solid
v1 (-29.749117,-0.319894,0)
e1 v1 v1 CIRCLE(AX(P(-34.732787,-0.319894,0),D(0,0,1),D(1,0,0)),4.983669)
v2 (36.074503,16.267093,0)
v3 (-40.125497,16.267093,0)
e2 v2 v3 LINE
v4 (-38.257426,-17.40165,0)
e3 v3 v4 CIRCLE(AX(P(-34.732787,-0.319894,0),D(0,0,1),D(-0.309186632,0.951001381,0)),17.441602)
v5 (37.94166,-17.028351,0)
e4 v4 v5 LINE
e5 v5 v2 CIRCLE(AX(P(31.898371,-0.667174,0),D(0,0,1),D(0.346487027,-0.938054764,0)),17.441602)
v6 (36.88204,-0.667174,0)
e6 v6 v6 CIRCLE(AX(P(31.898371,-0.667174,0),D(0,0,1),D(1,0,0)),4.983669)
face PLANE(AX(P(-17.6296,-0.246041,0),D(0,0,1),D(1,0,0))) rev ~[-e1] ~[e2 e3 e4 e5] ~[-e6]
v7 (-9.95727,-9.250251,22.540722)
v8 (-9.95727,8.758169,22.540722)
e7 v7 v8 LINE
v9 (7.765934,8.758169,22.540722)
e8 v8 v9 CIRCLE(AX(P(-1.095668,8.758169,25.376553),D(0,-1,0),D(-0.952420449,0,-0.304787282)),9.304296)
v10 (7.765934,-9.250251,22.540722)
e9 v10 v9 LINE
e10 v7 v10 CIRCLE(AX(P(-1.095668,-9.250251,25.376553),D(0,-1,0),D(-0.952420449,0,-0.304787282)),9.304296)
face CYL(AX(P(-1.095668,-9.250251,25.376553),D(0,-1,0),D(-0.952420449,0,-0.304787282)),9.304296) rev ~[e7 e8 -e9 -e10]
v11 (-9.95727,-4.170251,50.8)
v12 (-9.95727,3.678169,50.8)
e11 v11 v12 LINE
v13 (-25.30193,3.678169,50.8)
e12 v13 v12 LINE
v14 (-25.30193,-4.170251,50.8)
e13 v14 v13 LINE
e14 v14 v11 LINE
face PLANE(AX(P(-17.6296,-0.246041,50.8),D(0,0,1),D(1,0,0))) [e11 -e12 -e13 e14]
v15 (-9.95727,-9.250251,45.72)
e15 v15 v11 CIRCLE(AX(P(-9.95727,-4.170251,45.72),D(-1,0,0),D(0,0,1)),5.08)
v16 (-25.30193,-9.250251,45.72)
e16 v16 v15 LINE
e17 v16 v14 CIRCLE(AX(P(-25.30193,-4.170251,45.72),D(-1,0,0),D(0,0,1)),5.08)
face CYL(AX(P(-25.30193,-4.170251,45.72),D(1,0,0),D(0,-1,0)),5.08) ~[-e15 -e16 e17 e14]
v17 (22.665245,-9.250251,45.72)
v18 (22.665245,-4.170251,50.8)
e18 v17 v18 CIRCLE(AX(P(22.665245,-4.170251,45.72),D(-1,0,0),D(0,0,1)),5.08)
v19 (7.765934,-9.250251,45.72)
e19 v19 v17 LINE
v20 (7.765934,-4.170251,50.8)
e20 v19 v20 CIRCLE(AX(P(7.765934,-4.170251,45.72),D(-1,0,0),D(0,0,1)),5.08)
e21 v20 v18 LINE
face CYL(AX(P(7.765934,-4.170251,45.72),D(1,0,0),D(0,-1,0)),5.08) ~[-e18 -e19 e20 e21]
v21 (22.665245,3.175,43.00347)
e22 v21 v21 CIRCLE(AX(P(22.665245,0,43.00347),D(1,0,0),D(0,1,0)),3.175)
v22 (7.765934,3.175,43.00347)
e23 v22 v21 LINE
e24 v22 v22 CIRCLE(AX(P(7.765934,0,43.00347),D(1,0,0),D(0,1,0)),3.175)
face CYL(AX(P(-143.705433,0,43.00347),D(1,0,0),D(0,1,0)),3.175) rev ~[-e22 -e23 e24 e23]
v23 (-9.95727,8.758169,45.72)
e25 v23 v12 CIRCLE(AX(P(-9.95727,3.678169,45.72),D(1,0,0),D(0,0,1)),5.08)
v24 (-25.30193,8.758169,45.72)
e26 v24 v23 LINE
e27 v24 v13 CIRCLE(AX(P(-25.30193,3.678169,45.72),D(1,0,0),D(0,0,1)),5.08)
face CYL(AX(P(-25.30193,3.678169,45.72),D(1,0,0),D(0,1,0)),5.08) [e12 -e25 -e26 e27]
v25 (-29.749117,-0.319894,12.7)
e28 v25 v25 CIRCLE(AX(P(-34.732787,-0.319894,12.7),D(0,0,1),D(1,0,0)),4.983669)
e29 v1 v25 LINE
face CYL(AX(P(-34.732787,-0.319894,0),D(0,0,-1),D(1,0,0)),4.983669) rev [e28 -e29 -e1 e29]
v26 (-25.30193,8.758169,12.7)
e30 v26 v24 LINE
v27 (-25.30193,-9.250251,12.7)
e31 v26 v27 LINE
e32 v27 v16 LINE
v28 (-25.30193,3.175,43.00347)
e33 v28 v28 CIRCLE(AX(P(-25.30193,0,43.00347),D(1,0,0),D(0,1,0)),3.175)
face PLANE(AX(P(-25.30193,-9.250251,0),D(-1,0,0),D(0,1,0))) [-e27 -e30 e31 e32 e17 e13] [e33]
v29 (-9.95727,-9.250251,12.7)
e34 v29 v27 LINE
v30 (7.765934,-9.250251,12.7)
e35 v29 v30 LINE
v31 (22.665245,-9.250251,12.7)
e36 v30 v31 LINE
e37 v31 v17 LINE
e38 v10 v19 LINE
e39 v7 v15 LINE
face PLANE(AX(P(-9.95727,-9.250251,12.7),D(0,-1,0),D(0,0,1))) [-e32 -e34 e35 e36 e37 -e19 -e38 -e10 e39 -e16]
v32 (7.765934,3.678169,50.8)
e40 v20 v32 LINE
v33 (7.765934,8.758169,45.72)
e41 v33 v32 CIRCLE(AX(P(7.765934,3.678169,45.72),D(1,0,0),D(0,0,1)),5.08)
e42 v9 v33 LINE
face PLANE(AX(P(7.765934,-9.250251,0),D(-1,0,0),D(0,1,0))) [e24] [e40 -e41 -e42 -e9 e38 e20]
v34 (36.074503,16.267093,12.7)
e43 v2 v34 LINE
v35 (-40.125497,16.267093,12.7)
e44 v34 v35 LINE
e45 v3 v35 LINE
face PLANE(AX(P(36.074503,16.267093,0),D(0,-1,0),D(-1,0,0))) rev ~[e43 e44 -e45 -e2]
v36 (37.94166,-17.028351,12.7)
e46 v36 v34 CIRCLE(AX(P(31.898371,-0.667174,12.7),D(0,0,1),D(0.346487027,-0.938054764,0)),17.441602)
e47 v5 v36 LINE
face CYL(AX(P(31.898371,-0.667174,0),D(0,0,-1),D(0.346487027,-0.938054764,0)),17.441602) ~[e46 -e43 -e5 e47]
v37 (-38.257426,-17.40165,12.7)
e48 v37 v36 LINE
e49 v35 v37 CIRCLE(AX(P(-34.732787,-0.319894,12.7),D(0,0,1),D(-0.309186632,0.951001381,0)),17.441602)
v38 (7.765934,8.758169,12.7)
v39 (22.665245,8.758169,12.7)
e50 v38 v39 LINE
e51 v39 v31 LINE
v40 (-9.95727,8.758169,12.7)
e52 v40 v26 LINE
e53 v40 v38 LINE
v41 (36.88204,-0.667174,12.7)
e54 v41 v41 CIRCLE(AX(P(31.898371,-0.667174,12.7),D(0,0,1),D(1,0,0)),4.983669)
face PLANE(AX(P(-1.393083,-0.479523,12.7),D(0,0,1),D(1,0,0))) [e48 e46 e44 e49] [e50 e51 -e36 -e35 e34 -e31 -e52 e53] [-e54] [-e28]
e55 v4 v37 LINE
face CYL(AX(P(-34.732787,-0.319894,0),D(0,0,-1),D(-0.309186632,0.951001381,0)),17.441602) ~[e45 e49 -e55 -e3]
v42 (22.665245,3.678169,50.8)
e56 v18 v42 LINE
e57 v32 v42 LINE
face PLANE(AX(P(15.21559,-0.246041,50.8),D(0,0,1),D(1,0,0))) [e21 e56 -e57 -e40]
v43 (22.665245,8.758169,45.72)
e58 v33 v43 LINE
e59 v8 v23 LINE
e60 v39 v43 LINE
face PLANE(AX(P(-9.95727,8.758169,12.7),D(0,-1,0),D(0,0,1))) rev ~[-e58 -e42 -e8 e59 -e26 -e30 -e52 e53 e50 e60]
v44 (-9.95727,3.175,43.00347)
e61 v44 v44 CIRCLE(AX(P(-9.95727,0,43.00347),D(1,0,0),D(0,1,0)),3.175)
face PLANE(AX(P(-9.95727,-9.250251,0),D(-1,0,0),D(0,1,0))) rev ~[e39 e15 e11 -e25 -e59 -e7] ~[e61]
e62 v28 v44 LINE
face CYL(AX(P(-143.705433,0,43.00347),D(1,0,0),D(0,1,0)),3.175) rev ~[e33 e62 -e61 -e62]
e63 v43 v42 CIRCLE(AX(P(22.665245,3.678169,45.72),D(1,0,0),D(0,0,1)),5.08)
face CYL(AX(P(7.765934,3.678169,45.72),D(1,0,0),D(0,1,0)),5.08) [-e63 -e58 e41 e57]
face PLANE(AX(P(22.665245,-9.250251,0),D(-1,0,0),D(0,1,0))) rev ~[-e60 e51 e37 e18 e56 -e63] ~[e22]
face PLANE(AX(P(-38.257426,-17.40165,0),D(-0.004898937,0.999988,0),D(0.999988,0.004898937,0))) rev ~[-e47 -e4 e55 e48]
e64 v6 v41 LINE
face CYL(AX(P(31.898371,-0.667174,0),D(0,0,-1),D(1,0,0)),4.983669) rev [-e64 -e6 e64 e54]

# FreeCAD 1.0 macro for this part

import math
import FreeCAD as App
import Part
import Sketcher
from FreeCAD import Vector
Q = App.Units.Quantity


def edges_at(feature, points):
    """Names of the edges that pass closest to the given points."""
    edges = feature.Shape.Edges
    near = lambda p: min(range(len(edges)), key=lambda i: edges[i].distToShape(Part.Vertex(*p))[0])
    return sorted({f"Edge{near(p) + 1}" for p in points})


def add_polygon(sketch, points):
    """Adds a closed chain of lines whose ends are joined by coincident constraints."""
    first, n = sketch.GeometryCount, len(points)
    for a, b in zip(points, points[1:] + points[:1]):
        sketch.addGeometry(Part.LineSegment(App.Vector(*a, 0), App.Vector(*b, 0)), False)
    for i in range(n):
        sketch.addConstraint(Sketcher.Constraint("Coincident", first + i, 2, first + (i + 1) % n, 1))

doc = App.newDocument("Part")
params = doc.addObject("Spreadsheet::Sheet", "Params")
for row, (alias, value) in enumerate([
    ("sketch1_width", "3 in"),
    ("sketch1_length", "3 in"),
    ("pad1_length", "0.5 in"),
    ("pad2_length", "2 in"),
    ("fillet_radius", "0.2 in"),
    ("sketch3_diameter", "0.25 in"),
    ("hole_diameter", "0.25 in"),
    ("pad3_length", "0.7 in"),
    ("pocket1_length", "1 in"),
], start=1):
    params.set(f"A{row}", alias)
    params.set(f"B{row}", "=" + value)
    params.setAlias(f"B{row}", alias)

body = doc.addObject("PartDesign::Body", "Body")

# Sketch on XY plane
sketch1 = body.newObject("Sketcher::SketchObject", "Sketch")
sketch1.AttachmentSupport = (doc.getObject("XY_Plane"), [""])
sketch1.MapMode = "FlatFace"
sketch1.addGeometry([
    Part.LineSegment(Vector(36.1, 16.3, 0), Vector(-40.1, 16.3, 0)),  # 0
    Part.ArcOfCircle(Part.Circle(Vector(-34.7, -0.3, 0), Vector(0, 0, 1), 17.4), math.radians(108), math.radians(258)),  # 1
    Part.LineSegment(Vector(-38.3, -17.4, 0), Vector(37.9, -17, 0)),  # 2
    Part.ArcOfCircle(Part.Circle(Vector(31.9, -0.7, 0), Vector(0, 0, 1), 17.4), math.radians(-70), math.radians(76)),  # 3
    Part.Circle(Vector(-34.7, -0.3, 0), Vector(0, 0, 1), 5),  # 4
    Part.Circle(Vector(31.9, -0.7, 0), Vector(0, 0, 1), 5),  # 5
], False)
sketch1.addConstraint([
    Sketcher.Constraint("Coincident", 0, 2, 1, 1),
    Sketcher.Constraint("Coincident", 1, 2, 2, 1),
    Sketcher.Constraint("Coincident", 2, 2, 3, 1),
    Sketcher.Constraint("Coincident", 3, 2, 0, 1),
    Sketcher.Constraint("Horizontal", 0),
    Sketcher.Constraint("Coincident", 4, 3, 1, 3),
    Sketcher.Constraint("Coincident", 5, 3, 3, 3),
    Sketcher.Constraint("Equal", 1, 3),
    Sketcher.Constraint("Equal", 4, 5),
    Sketcher.Constraint("DistanceX", 0, 2, 0, 1, Q("3 in")),
    Sketcher.Constraint("Distance", 2, Q("3 in")),
    Sketcher.Constraint("Radius", 1, Q("17.441602 mm")),
    Sketcher.Constraint("Diameter", 4, Q("9.967338 mm")),
    Sketcher.Constraint("DistanceY", 1, 2, 2, 2, Q("0.373299 mm")),
    Sketcher.Constraint("DistanceX", -1, 1, 3, 3, Q("31.898371 mm")),
    Sketcher.Constraint("DistanceY", 1, 2, -1, 1, Q("17.40165 mm")),
    Sketcher.Constraint("DistanceX", -1, 1, 2, 2, Q("37.94166 mm")),
    Sketcher.Constraint("DistanceY", 3, 3, 1, 3, Q("0.347279 mm")),
])
sketch1.setExpression("Constraints[9]", "Params.sketch1_width")
sketch1.setExpression("Constraints[10]", "Params.sketch1_length")
pad1 = body.newObject("PartDesign::Pad", "Pad")
pad1.Profile = sketch1
pad1.setExpression("Length", "Params.pad1_length")

# Sketch on XY plane
sketch2 = body.newObject("Sketcher::SketchObject", "Sketch001")
sketch2.AttachmentSupport = (doc.getObject("XY_Plane"), [""])
sketch2.MapMode = "FlatFace"
add_polygon(sketch2, [(-25, 9), (-25, -9), (-10, -9), (-10, 9)])  # lines 0-3
add_polygon(sketch2, [(8, 9), (8, -9), (23, -9), (23, 9)])  # lines 4-7
sketch2.addConstraint([
    Sketcher.Constraint("Vertical", 0),
    Sketcher.Constraint("Horizontal", 1),
    Sketcher.Constraint("Vertical", 2),
    Sketcher.Constraint("Horizontal", 3),
    Sketcher.Constraint("Vertical", 4),
    Sketcher.Constraint("Horizontal", 5),
    Sketcher.Constraint("Vertical", 6),
    Sketcher.Constraint("Horizontal", 7),
    Sketcher.Constraint("Horizontal", 1, 2, 4, 2),
    Sketcher.Constraint("Horizontal", 3, 2, 6, 2),
    Sketcher.Constraint("DistanceX", 1, 1, 1, 2, Q("15.34466 mm")),
    Sketcher.Constraint("DistanceX", 5, 1, 5, 2, Q("14.899312 mm")),
    Sketcher.Constraint("DistanceY", 0, 2, 0, 1, Q("18.008419 mm")),
    Sketcher.Constraint("DistanceX", 0, 2, -1, 1, Q("25.30193 mm")),
    Sketcher.Constraint("DistanceY", 0, 2, -1, 1, Q("9.250251 mm")),
    Sketcher.Constraint("DistanceX", -1, 1, 4, 2, Q("7.765934 mm")),
])
pad2 = body.newObject("PartDesign::Pad", "Pad001")
pad2.Profile = sketch2
pad2.setExpression("Length", "Params.pad2_length")
doc.recompute()

fillet = body.newObject("PartDesign::Fillet", "Fillet")
fillet.Base = (pad2, edges_at(pad2, [
    (-17.63, -9.25, 50.8),
    (-17.63, 8.758, 50.8),
    (15.216, 8.758, 50.8),
    (15.216, -9.25, 50.8),
]))
fillet.setExpression("Radius", "Params.fillet_radius")

# Sketch on YZ plane
sketch3 = body.newObject("Sketcher::SketchObject", "Sketch002")
sketch3.AttachmentSupport = (doc.getObject("YZ_Plane"), [""])
sketch3.MapMode = "FlatFace"
sketch3.AttachmentOffset = App.Placement(Vector(0, 0, -25.30193), App.Rotation())
sketch3.addGeometry(Part.Circle(Vector(0, 43, 0), Vector(0, 0, 1), 3.2), False)
sketch3.addConstraint([
    Sketcher.Constraint("PointOnObject", 0, 3, -2),
    Sketcher.Constraint("Diameter", 0, Q("0.25 in")),
    Sketcher.Constraint("DistanceY", -1, 1, 0, 3, Q("43.00347 mm")),
])
sketch3.setExpression("Constraints[1]", "Params.sketch3_diameter")
doc.recompute()
hole = body.newObject("PartDesign::Hole", "Hole")
hole.Profile = sketch3
hole.ThreadType = "None"
hole.setExpression("Diameter", "Params.hole_diameter")
hole.DepthType = "ThroughAll"
hole.Reversed = True

# Sketch on YZ plane
sketch4 = body.newObject("Sketcher::SketchObject", "Sketch003")
sketch4.AttachmentSupport = (doc.getObject("YZ_Plane"), [""])
sketch4.MapMode = "FlatFace"
sketch4.AttachmentOffset = App.Placement(Vector(0, 0, -9.95727), App.Rotation())
add_polygon(sketch4, [(-9, 23), (-9, 13), (9, 13), (9, 23)])  # lines 0-3
sketch4.addConstraint([
    Sketcher.Constraint("Vertical", 0),
    Sketcher.Constraint("Horizontal", 1),
    Sketcher.Constraint("Vertical", 2),
    Sketcher.Constraint("Horizontal", 3),
    Sketcher.Constraint("DistanceY", -1, 1, 0, 2, Q("0.5 in")),
    Sketcher.Constraint("DistanceX", 1, 1, 1, 2, Q("18.008419 mm")),
    Sketcher.Constraint("DistanceY", 0, 2, 0, 1, Q("9.840722 mm")),
    Sketcher.Constraint("DistanceX", 0, 2, -1, 1, Q("9.250251 mm")),
])
pad3 = body.newObject("PartDesign::Pad", "Pad002")
pad3.Profile = sketch4
pad3.setExpression("Length", "Params.pad3_length")

# Sketch on XZ plane
sketch5 = body.newObject("Sketcher::SketchObject", "Sketch004")
sketch5.AttachmentSupport = (doc.getObject("XZ_Plane"), [""])
sketch5.MapMode = "FlatFace"
sketch5.AttachmentOffset = App.Placement(Vector(0, 0, 9.250251), App.Rotation())
sketch5.addGeometry([
    Part.LineSegment(Vector(8, 23, 0), Vector(-10, 23, 0)),
    Part.ArcOfCircle(Part.Circle(Vector(-1, 25, 0), Vector(0, 0, 1), 9), math.radians(-162), math.radians(-18)),
], False)
sketch5.addConstraint([
    Sketcher.Constraint("Coincident", 0, 1, 1, 2),
    Sketcher.Constraint("Coincident", 1, 1, 0, 2),
    Sketcher.Constraint("Horizontal", 0),
    Sketcher.Constraint("Radius", 1, Q("9.304296 mm")),
    Sketcher.Constraint("DistanceX", 1, 3, 0, 1, Q("8.861602 mm")),
    Sketcher.Constraint("DistanceX", 1, 1, -1, 1, Q("9.95727 mm")),
    Sketcher.Constraint("DistanceY", -1, 1, 1, 3, Q("25.376553 mm")),
])
pocket1 = body.newObject("PartDesign::Pocket", "Pocket")
pocket1.Profile = sketch5
pocket1.setExpression("Length", "Params.pocket1_length")

doc.recompute()
